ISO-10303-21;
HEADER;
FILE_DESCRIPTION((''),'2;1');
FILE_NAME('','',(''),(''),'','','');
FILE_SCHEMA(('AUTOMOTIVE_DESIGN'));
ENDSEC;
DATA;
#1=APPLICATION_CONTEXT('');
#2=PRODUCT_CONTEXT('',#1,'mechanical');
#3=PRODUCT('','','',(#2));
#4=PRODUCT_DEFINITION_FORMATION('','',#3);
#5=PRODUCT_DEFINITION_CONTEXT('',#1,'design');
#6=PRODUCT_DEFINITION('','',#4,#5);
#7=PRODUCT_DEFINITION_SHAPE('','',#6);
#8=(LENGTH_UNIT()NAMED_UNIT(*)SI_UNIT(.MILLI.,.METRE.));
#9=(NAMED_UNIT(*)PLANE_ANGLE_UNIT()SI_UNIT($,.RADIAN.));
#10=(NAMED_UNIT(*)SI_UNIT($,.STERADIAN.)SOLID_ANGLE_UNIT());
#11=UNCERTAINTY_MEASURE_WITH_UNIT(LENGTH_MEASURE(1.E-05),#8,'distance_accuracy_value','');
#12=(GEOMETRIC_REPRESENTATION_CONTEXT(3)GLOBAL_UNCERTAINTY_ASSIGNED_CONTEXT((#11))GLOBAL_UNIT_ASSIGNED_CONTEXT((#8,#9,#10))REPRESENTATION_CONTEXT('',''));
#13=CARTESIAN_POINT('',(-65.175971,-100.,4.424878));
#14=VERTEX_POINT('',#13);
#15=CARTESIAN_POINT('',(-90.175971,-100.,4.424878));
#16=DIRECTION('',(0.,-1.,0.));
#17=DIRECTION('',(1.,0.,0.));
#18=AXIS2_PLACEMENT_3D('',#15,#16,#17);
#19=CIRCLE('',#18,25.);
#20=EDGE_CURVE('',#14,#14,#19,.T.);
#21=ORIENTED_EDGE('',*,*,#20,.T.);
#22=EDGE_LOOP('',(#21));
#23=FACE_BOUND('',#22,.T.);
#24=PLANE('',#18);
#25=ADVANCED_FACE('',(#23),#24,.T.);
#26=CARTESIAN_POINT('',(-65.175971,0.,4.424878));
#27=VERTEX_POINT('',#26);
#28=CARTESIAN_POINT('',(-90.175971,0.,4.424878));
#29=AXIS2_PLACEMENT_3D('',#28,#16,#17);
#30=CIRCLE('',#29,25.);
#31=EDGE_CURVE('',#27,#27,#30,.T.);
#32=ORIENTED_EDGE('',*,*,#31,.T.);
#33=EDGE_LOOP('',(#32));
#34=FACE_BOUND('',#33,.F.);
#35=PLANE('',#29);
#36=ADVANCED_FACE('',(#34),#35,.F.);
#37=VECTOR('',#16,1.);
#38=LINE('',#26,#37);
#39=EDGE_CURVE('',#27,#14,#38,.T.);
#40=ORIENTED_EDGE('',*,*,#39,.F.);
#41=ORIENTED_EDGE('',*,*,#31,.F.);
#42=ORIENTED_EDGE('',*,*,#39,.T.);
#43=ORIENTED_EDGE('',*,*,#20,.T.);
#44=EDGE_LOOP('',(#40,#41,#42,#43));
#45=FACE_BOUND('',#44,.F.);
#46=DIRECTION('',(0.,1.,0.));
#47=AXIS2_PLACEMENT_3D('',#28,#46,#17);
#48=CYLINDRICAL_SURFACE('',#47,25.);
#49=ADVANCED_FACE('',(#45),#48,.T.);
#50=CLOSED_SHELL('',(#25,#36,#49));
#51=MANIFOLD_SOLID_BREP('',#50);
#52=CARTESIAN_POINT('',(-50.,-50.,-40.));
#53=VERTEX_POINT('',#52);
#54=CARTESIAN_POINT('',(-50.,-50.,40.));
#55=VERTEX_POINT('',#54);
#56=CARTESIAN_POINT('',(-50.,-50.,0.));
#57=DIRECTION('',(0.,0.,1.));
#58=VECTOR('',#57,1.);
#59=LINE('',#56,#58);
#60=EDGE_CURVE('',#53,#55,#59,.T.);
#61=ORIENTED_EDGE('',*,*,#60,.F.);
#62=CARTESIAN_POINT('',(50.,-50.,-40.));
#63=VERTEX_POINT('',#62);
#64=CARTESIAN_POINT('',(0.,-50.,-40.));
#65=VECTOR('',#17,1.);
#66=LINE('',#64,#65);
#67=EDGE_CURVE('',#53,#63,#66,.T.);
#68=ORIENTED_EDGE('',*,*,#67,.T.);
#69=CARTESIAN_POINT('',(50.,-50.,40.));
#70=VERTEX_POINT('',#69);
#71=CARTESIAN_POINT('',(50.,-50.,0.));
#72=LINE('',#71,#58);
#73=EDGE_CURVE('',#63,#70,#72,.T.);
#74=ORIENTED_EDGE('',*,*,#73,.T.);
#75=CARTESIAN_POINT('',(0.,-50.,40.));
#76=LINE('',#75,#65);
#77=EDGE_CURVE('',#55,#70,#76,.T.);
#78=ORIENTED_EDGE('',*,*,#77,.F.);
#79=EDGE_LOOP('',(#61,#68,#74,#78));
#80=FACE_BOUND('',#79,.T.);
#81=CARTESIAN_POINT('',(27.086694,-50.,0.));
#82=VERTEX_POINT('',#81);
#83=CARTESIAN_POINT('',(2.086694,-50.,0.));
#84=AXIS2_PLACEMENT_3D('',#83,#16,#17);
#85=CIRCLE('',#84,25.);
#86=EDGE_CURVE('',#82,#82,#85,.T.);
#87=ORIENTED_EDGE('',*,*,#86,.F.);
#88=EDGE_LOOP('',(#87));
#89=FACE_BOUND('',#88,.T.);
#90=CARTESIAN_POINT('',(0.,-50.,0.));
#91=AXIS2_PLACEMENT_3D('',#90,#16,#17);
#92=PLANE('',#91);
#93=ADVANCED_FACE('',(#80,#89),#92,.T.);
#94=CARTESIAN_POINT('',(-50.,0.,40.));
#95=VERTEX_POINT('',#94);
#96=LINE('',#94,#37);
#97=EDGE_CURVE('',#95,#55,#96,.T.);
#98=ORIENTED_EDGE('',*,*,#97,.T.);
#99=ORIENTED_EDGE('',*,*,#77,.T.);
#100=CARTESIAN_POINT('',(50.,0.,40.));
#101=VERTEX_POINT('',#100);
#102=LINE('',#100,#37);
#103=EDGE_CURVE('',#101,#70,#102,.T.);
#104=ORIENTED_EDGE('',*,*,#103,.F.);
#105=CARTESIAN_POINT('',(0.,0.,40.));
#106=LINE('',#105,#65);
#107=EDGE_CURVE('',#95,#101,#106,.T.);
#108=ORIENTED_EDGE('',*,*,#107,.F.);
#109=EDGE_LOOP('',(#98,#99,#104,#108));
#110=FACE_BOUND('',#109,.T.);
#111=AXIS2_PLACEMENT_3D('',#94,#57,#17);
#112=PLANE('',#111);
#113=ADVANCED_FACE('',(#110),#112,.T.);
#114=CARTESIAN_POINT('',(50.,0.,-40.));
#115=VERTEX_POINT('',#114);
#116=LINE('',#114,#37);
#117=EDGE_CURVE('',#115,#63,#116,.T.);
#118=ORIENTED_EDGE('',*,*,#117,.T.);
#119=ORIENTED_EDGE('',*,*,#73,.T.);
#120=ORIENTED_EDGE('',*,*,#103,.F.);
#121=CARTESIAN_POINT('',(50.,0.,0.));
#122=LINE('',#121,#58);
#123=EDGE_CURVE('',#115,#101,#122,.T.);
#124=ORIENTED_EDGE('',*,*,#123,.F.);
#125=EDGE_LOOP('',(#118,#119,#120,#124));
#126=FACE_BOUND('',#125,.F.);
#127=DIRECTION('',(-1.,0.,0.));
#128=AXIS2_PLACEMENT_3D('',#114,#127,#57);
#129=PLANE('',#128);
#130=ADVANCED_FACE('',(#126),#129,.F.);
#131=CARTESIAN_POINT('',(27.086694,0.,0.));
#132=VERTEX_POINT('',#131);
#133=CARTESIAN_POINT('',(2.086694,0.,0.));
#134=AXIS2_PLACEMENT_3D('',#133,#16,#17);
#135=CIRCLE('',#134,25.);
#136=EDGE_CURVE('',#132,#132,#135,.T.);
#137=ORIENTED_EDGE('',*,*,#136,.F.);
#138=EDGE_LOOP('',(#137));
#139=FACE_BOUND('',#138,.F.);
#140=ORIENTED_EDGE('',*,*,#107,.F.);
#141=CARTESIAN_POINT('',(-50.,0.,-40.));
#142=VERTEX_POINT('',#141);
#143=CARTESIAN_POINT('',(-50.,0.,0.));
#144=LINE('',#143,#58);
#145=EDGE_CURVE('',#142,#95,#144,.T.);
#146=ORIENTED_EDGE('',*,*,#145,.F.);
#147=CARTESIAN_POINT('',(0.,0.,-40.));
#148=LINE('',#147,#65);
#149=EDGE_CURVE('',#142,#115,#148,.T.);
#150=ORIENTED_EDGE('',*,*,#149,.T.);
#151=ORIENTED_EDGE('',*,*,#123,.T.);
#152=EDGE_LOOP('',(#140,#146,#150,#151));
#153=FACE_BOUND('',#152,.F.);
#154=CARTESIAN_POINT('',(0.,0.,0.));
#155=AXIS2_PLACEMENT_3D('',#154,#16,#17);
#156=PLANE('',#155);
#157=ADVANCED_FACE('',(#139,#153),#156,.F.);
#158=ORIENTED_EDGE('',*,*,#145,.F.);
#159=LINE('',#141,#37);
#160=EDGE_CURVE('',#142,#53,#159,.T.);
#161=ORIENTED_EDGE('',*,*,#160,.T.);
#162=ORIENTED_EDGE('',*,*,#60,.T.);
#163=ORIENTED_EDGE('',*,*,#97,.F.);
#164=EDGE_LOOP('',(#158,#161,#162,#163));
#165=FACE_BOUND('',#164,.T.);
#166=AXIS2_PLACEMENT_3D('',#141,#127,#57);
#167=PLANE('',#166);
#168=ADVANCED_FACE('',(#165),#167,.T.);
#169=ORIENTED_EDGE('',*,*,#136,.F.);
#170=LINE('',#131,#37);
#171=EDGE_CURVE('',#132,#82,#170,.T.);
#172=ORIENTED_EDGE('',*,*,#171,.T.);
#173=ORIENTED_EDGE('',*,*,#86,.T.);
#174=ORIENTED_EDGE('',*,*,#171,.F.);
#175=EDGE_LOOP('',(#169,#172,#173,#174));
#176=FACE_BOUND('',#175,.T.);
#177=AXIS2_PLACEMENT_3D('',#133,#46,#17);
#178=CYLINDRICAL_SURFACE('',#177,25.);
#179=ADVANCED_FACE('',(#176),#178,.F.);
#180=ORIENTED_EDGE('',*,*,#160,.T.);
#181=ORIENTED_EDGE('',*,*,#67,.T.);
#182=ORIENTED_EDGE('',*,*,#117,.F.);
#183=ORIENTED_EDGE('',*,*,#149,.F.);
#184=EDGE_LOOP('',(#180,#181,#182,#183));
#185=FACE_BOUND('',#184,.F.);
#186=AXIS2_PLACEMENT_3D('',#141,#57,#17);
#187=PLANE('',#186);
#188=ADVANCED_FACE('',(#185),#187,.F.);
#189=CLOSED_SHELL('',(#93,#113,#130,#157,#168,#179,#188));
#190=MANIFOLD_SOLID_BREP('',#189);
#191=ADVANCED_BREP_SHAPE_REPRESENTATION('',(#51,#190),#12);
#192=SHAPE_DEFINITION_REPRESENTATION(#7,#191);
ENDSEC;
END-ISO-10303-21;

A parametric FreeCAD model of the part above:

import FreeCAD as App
import Part
import Sketcher
from FreeCAD import Vector


def add_polygon(sketch, points):
    """Adds a closed chain of lines whose ends are joined by coincident constraints."""
    first, n = sketch.GeometryCount, len(points)
    for a, b in zip(points, points[1:] + points[:1]):
        sketch.addGeometry(Part.LineSegment(App.Vector(*a, 0), App.Vector(*b, 0)), False)
    for i in range(n):
        sketch.addConstraint(Sketcher.Constraint("Coincident", first + i, 2, first + (i + 1) % n, 1))

doc = App.newDocument("Part")
body = doc.addObject("PartDesign::Body", "Body")

sketch1 = body.newObject("Sketcher::SketchObject", "Sketch")
sketch1.AttachmentSupport = (doc.getObject("XZ_Plane"), [""])
sketch1.MapMode = "FlatFace"
add_polygon(sketch1, [(-50, 40), (-50, -40), (50, -40), (50, 40)])
sketch1.addConstraint([
    Sketcher.Constraint("Vertical", 0),
    Sketcher.Constraint("Horizontal", 1),
    Sketcher.Constraint("Vertical", 2),
    Sketcher.Constraint("Horizontal", 3),
    Sketcher.Constraint("Symmetric", 0, 2, 2, 2, -1, 1),
    Sketcher.Constraint("DistanceX", 1, 1, 1, 2, 100.0),
    Sketcher.Constraint("DistanceY", 0, 2, 0, 1, 80.0),
])
pad1 = body.newObject("PartDesign::Pad", "Pad")
pad1.Profile = sketch1
pad1.Length = 50

sketch2 = body.newObject("Sketcher::SketchObject", "Sketch001")
sketch2.AttachmentSupport = (doc.getObject("XZ_Plane"), [""])
sketch2.MapMode = "FlatFace"
sketch2.addGeometry(Part.Circle(Vector(2, 0, 0), Vector(0, 0, 1), 25), False)
sketch2.addConstraint([
    Sketcher.Constraint("PointOnObject", 0, 3, -1),
    Sketcher.Constraint("Diameter", 0, 50.0),
    Sketcher.Constraint("DistanceX", -1, 1, 0, 3, 2.086694),
])
pocket1 = body.newObject("PartDesign::Pocket", "Pocket")
pocket1.Profile = sketch2
pocket1.Length = 50
pocket1.Reversed = True
body2 = doc.addObject("PartDesign::Body", "Body001")

sketch3 = body2.newObject("Sketcher::SketchObject", "Sketch002")
sketch3.AttachmentSupport = (doc.getObject("XZ_Plane001"), [""])
sketch3.MapMode = "FlatFace"
sketch3.addGeometry(Part.Circle(Vector(-90, 4, 0), Vector(0, 0, 1), 25), False)
sketch3.addConstraint([
    Sketcher.Constraint("Diameter", 0, 50.0),
    Sketcher.Constraint("DistanceX", 0, 3, -1, 1, 90.175971),
    Sketcher.Constraint("DistanceY", -1, 1, 0, 3, 4.424878),
])
pad2 = body2.newObject("PartDesign::Pad", "Pad001")
pad2.Profile = sketch3
pad2.Length = 100

doc.recompute()
